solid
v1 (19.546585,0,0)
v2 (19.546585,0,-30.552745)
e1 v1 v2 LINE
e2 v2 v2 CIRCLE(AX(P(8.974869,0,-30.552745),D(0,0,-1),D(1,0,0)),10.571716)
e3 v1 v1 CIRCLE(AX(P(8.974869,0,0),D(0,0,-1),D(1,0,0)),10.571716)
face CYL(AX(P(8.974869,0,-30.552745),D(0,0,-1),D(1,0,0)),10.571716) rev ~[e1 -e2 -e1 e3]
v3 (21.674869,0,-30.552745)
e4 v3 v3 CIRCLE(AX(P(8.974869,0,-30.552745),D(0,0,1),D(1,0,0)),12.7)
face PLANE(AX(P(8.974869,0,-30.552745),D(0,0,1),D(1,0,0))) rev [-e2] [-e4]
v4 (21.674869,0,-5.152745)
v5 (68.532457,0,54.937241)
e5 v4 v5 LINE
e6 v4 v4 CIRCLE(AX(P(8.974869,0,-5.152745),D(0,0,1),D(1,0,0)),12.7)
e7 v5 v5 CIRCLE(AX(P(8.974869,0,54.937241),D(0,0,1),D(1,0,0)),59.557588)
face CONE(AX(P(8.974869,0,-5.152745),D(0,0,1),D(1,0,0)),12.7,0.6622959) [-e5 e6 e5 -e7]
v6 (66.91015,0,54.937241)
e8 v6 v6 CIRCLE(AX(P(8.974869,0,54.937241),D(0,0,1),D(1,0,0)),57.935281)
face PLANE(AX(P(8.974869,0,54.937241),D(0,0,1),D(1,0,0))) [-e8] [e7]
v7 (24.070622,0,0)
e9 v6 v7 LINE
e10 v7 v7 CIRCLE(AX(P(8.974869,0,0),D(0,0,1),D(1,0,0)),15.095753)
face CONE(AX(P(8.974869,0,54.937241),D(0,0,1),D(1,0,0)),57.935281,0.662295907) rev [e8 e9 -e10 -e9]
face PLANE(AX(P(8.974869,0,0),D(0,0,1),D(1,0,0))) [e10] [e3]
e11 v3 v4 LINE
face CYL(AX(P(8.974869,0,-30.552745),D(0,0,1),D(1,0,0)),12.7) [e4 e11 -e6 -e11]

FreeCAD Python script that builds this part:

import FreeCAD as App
import Part
import Sketcher
from FreeCAD import Vector
Q = App.Units.Quantity

doc = App.newDocument("Part")
body = doc.addObject("PartDesign::Body", "Body")

# Sketch on XZ plane
sketch1 = body.newObject("Sketcher::SketchObject", "Sketch")
sketch1.AttachmentSupport = (doc.getObject("XZ_Plane"), [""])
sketch1.MapMode = "FlatFace"
sketch1.addGeometry(Part.LineSegment(Vector(9, -30.6, 0), Vector(21.7, -30.6, 0)), False)
sketch1.addGeometry(Part.LineSegment(Vector(21.7, -30.6, 0), Vector(21.7, -5.2, 0)), False)
sketch1.addGeometry(Part.LineSegment(Vector(21.7, -5.2, 0), Vector(68.5, 54.9, 0)), False)
sketch1.addGeometry(Part.LineSegment(Vector(68.5, 54.9, 0), Vector(66.9, 54.9, 0)), False)
sketch1.addGeometry(Part.LineSegment(Vector(66.9, 54.9, 0), Vector(24.1, 0, 0)), False)
sketch1.addGeometry(Part.LineSegment(Vector(24.1, 0, 0), Vector(9, 0, 0)), False)
sketch1.addGeometry(Part.LineSegment(Vector(9, 0, 0), Vector(9, -30.6, 0)), False)
sketch1.addGeometry(Part.LineSegment(Vector(9, -30.6, 0), Vector(9, 54.9, 0)), True)  # axis
sketch1.addConstraint(Sketcher.Constraint("Coincident", 0, 2, 1, 1))
sketch1.addConstraint(Sketcher.Constraint("Coincident", 1, 2, 2, 1))
sketch1.addConstraint(Sketcher.Constraint("Coincident", 2, 2, 3, 1))
sketch1.addConstraint(Sketcher.Constraint("Coincident", 3, 2, 4, 1))
sketch1.addConstraint(Sketcher.Constraint("Coincident", 4, 2, 5, 1))
sketch1.addConstraint(Sketcher.Constraint("Coincident", 5, 2, 6, 1))
sketch1.addConstraint(Sketcher.Constraint("Coincident", 6, 2, 0, 1))
sketch1.addConstraint(Sketcher.Constraint("Horizontal", 0))
sketch1.addConstraint(Sketcher.Constraint("Vertical", 1))
sketch1.addConstraint(Sketcher.Constraint("Horizontal", 3))
sketch1.addConstraint(Sketcher.Constraint("Horizontal", 5))
sketch1.addConstraint(Sketcher.Constraint("Vertical", 6))
sketch1.addConstraint(Sketcher.Constraint("Vertical", 7))
sketch1.addConstraint(Sketcher.Constraint("Coincident", 7, 1, 6, 2))
sketch1.addConstraint(Sketcher.Constraint("PointOnObject", 4, 2, -1))
sketch1.addConstraint(Sketcher.Constraint("Parallel", 2, 4))
sketch1.addConstraint(Sketcher.Constraint("Horizontal", 3, 2, 7, 2))
sketch1.addConstraint(Sketcher.Constraint("DistanceY", 1, 1, 1, 2, Q("1 in")))
sketch1.addConstraint(Sketcher.Constraint("Distance", 2, Q("3 in")))
sketch1.addConstraint(Sketcher.Constraint("DistanceX", 0, 1, 0, 2, Q("0.5 in")))
sketch1.addConstraint(Sketcher.Constraint("DistanceX", 3, 2, 3, 1, Q("1.622307 mm")))
sketch1.addConstraint(Sketcher.Constraint("DistanceX", 5, 2, 5, 1, Q("15.095753 mm")))
sketch1.addConstraint(Sketcher.Constraint("DistanceY", 6, 2, 6, 1, Q("30.552745 mm")))
sketch1.addConstraint(Sketcher.Constraint("DistanceX", -1, 1, 0, 2, Q("21.674869 mm")))
revolution = body.newObject("PartDesign::Revolution", "Revolution")
revolution.Profile = sketch1
revolution.ReferenceAxis = (sketch1, ["Axis0"])
revolution.Angle = 360

# Sketch on XY plane
sketch2 = body.newObject("Sketcher::SketchObject", "Sketch001")
sketch2.AttachmentSupport = (doc.getObject("XY_Plane"), [""])
sketch2.MapMode = "FlatFace"
sketch2.AttachmentOffset = App.Placement(Vector(0, 0, -30.552745), App.Rotation())
sketch2.addGeometry(Part.Circle(Vector(9, 0, 0), Vector(0, 0, 1), 11), False)
sketch2.addConstraint(Sketcher.Constraint("PointOnObject", 0, 3, -1))
sketch2.addConstraint(Sketcher.Constraint("Diameter", 0, Q("21.143432 mm")))
sketch2.addConstraint(Sketcher.Constraint("DistanceX", -1, 1, 0, 3, Q("8.974869 mm")))
pocket1 = body.newObject("PartDesign::Pocket", "Pocket")
pocket1.Profile = sketch2
pocket1.Length = Q("0.9 in")
pocket1.Reversed = True

# Sketch on XY plane
sketch3 = body.newObject("Sketcher::SketchObject", "Sketch002")
sketch3.AttachmentSupport = (doc.getObject("XY_Plane"), [""])
sketch3.MapMode = "FlatFace"
sketch3.AttachmentOffset = App.Placement(Vector(0, 0, -7.692745), App.Rotation())
sketch3.addGeometry(Part.Circle(Vector(9, 0, 0), Vector(0, 0, 1), 11), False)
sketch3.addConstraint(Sketcher.Constraint("PointOnObject", 0, 3, -1))
sketch3.addConstraint(Sketcher.Constraint("Diameter", 0, Q("21.143432 mm")))
sketch3.addConstraint(Sketcher.Constraint("DistanceX", -1, 1, 0, 3, Q("8.974869 mm")))
pocket2 = body.newObject("PartDesign::Pocket", "Pocket001")
pocket2.Profile = sketch3
pocket2.Length = Q("1 in")
pocket2.Reversed = True

doc.recompute()
